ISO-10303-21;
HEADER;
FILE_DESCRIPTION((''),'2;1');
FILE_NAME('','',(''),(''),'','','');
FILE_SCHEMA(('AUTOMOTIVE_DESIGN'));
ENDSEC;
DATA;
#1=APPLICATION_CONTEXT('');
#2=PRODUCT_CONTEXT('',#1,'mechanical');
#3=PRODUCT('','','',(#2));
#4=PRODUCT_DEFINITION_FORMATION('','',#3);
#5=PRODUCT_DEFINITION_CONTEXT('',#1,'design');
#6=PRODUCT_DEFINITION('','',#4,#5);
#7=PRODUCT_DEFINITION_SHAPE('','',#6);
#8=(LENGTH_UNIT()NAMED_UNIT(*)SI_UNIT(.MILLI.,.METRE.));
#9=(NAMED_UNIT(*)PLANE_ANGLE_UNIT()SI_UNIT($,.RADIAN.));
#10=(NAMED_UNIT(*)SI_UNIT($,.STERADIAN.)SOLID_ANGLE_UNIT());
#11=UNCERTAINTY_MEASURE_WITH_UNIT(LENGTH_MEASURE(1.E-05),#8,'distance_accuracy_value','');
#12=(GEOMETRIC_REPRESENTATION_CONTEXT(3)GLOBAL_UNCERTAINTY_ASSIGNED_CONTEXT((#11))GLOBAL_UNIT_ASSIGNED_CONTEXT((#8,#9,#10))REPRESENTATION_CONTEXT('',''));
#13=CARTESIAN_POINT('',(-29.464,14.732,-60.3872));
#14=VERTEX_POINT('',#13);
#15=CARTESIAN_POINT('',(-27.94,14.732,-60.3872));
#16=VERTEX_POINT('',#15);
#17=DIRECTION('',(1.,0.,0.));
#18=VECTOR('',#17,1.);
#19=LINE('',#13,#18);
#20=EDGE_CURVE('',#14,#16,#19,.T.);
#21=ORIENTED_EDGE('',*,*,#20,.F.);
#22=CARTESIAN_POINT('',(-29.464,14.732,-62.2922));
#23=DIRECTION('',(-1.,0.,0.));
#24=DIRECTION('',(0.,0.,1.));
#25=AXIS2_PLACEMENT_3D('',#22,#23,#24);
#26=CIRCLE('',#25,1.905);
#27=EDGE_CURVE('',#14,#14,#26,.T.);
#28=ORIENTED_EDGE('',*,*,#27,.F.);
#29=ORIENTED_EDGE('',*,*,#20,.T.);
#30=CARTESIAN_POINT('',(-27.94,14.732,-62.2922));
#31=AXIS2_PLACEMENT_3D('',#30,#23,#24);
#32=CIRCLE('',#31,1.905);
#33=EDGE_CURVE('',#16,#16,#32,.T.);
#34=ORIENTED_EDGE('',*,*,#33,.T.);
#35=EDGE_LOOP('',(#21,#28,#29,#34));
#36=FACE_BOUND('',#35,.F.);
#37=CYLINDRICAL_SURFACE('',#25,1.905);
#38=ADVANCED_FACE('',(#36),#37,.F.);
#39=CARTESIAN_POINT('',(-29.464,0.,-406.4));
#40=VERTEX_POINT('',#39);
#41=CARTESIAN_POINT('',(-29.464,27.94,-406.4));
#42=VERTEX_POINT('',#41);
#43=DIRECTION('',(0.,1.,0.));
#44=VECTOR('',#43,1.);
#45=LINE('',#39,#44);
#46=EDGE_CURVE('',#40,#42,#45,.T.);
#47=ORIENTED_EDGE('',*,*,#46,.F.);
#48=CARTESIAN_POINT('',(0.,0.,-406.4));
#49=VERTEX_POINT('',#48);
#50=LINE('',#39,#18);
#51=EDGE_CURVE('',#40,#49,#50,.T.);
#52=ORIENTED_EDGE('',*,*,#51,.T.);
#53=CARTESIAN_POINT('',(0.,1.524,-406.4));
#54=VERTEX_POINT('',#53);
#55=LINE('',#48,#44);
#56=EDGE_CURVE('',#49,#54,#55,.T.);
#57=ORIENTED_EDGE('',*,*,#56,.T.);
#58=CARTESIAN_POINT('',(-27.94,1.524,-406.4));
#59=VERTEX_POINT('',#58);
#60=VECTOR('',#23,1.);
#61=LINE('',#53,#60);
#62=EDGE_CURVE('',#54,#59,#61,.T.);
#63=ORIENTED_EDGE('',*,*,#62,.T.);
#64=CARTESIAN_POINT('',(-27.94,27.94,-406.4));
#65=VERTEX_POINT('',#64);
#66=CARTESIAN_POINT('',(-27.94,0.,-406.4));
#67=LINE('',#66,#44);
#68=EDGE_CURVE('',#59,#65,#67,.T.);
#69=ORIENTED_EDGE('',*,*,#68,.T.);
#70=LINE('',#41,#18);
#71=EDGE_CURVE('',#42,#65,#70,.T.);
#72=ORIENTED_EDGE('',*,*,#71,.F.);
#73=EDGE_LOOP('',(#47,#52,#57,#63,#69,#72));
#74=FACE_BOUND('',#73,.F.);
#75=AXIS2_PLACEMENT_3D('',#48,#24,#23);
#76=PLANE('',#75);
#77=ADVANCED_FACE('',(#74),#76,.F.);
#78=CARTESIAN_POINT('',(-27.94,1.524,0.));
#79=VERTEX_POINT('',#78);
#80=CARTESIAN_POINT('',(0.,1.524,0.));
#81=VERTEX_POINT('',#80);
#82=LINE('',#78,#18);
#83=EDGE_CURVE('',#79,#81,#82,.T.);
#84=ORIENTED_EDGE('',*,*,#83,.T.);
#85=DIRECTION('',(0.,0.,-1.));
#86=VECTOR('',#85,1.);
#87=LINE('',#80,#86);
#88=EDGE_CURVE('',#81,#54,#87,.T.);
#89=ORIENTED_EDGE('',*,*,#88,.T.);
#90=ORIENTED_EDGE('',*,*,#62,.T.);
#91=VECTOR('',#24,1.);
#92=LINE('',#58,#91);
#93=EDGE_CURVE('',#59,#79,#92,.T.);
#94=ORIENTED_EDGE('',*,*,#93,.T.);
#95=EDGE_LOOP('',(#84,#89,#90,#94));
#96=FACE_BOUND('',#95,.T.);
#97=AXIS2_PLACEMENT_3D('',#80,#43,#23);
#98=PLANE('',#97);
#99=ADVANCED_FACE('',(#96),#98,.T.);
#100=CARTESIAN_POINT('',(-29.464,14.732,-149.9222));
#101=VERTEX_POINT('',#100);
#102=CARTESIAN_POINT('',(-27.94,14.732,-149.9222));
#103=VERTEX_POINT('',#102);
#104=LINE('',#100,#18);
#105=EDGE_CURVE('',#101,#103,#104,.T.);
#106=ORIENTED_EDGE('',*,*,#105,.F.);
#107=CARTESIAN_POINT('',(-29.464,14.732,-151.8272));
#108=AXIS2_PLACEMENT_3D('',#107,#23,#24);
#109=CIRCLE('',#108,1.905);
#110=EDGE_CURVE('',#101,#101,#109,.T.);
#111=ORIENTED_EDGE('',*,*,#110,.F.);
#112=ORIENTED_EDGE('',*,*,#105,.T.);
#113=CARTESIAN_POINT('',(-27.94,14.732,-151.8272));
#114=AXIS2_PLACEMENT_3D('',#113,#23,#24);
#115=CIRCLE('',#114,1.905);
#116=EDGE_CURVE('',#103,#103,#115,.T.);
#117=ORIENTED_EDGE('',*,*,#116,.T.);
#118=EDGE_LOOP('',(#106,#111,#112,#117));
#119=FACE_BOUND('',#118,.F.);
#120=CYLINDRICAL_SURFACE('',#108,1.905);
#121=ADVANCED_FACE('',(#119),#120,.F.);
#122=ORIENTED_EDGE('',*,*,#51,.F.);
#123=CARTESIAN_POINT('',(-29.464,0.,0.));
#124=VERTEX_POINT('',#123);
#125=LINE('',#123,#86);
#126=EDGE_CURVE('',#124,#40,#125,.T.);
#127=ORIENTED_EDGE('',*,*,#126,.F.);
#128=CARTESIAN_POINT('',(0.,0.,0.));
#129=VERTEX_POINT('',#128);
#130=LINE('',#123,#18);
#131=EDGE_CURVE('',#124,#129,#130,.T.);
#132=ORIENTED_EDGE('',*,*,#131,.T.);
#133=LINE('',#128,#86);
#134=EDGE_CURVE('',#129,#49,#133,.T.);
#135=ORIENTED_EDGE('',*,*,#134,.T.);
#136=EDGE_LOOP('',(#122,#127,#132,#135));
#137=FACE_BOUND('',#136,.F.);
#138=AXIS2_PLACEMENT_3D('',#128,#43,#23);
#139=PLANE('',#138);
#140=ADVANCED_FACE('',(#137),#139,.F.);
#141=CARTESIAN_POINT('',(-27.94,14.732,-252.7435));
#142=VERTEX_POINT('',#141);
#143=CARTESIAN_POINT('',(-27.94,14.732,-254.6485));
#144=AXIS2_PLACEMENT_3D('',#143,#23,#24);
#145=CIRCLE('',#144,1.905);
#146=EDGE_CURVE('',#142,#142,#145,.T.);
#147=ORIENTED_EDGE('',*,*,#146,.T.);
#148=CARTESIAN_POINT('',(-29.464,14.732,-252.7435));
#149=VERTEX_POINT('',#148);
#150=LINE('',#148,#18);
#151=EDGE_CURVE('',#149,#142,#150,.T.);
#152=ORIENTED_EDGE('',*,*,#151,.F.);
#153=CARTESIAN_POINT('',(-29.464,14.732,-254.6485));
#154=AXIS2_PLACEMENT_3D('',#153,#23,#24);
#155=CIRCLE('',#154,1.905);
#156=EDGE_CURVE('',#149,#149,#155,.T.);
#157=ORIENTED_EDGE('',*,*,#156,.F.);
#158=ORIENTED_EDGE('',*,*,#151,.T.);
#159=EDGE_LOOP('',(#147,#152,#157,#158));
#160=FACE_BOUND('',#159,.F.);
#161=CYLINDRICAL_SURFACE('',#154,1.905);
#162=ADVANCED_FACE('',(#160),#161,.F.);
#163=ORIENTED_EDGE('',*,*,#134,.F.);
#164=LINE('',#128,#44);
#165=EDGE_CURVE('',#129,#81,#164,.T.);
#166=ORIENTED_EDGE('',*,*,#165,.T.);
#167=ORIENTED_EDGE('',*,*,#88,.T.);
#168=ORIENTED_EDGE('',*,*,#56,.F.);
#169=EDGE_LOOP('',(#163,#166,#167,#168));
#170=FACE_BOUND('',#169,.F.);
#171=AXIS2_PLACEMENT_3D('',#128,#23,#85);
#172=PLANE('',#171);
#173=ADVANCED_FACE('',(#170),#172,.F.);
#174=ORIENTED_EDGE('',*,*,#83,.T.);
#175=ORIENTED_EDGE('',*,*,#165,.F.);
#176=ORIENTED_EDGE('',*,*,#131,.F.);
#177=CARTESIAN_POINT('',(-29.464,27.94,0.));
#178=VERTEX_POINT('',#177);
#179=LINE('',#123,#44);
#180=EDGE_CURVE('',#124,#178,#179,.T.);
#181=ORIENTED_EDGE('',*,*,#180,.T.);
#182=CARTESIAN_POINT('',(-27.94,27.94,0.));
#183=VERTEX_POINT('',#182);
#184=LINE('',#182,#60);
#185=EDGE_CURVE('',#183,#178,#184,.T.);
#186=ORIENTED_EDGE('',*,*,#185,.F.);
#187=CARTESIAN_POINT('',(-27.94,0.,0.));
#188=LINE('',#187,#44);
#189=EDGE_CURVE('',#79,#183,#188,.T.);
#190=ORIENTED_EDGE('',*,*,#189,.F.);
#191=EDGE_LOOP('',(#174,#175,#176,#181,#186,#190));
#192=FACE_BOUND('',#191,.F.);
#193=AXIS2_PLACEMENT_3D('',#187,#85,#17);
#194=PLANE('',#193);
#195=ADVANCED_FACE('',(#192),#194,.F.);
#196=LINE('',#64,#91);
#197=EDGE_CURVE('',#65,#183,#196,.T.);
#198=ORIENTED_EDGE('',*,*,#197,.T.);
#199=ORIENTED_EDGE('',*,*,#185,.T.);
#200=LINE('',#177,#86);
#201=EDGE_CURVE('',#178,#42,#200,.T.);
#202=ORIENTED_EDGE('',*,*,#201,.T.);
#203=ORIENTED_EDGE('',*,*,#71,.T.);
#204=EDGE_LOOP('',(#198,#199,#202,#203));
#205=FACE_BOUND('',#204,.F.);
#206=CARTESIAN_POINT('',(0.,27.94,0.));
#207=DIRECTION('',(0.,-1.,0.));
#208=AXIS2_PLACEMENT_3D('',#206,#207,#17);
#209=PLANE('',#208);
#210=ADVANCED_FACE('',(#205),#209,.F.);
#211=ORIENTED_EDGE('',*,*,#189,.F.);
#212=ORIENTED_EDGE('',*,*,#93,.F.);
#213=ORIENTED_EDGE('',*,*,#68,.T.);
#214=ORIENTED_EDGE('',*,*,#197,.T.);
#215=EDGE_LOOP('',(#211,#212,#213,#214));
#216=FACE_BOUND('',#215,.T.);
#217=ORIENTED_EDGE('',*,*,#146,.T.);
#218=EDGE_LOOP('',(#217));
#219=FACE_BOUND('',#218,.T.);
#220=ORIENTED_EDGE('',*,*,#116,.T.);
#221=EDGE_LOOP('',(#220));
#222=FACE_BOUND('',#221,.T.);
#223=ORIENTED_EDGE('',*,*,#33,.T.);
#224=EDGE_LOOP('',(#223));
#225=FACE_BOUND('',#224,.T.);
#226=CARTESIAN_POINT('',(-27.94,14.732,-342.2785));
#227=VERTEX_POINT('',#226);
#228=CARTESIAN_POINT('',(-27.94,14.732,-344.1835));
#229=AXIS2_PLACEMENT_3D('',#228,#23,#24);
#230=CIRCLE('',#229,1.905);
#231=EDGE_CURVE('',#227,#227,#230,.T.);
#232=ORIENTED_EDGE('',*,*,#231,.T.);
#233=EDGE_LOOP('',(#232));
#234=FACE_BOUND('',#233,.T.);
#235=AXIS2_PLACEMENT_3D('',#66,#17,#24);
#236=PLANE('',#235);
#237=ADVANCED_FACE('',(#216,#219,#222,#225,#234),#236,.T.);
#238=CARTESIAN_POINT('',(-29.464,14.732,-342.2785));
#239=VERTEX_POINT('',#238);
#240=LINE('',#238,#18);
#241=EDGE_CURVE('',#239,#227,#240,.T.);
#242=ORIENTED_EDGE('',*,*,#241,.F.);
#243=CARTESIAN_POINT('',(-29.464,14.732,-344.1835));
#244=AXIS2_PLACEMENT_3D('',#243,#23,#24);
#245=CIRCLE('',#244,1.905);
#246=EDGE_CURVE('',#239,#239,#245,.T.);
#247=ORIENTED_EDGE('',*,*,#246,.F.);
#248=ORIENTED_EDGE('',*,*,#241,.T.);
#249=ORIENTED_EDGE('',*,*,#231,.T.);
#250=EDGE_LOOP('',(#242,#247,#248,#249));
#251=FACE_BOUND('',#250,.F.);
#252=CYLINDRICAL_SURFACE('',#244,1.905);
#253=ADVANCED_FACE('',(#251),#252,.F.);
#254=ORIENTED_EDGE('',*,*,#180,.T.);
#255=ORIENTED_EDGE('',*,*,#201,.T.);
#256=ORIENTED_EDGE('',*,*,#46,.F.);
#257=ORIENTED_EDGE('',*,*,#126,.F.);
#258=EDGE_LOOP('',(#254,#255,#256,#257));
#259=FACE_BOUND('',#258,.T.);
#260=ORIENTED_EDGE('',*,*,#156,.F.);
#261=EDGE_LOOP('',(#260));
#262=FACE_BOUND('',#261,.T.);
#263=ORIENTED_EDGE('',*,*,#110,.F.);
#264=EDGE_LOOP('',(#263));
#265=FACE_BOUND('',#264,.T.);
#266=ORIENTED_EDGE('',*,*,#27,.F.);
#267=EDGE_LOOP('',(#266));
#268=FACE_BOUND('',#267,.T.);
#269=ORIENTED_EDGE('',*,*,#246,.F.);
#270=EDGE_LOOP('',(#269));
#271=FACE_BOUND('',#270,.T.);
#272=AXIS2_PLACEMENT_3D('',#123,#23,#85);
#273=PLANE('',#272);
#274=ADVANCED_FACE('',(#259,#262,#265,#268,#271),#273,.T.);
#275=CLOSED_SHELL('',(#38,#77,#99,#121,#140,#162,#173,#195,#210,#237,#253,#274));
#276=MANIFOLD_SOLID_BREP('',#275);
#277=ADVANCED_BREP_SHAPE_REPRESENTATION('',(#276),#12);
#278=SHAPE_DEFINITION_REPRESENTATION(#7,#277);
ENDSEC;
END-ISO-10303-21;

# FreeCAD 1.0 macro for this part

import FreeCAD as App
import Part
import Sketcher
Q = App.Units.Quantity

doc = App.newDocument("Part")
body = doc.addObject("PartDesign::Body", "Body")

# Sketch on XZ plane
sketch1 = doc.addObject("Sketcher::SketchObject", "Sketch")
body.addObject(sketch1)
sketch1.AttachmentSupport = (doc.XZ_Plane, [""])
sketch1.MapMode = "FlatFace"
sketch1.addGeometry(Part.LineSegment(App.Vector(-28, 0, 0), App.Vector(0, 0, 0)), False)
sketch1.addGeometry(Part.LineSegment(App.Vector(0, 0, 0), App.Vector(0, -406, 0)), False)
sketch1.addGeometry(Part.LineSegment(App.Vector(0, -406, 0), App.Vector(-28, -406, 0)), False)
sketch1.addGeometry(Part.LineSegment(App.Vector(-28, -406, 0), App.Vector(-28, 0, 0)), False)
sketch1.addConstraint(Sketcher.Constraint("Coincident", 0, 2, 1, 1))
sketch1.addConstraint(Sketcher.Constraint("Coincident", 1, 2, 2, 1))
sketch1.addConstraint(Sketcher.Constraint("Coincident", 2, 2, 3, 1))
sketch1.addConstraint(Sketcher.Constraint("Coincident", 3, 2, 0, 1))
sketch1.addConstraint(Sketcher.Constraint("Horizontal", 0))
sketch1.addConstraint(Sketcher.Constraint("Vertical", 1))
sketch1.addConstraint(Sketcher.Constraint("Horizontal", 2))
sketch1.addConstraint(Sketcher.Constraint("Vertical", 3))
sketch1.addConstraint(Sketcher.Constraint("Coincident", 0, 2, -1, 1))
sketch1.addConstraint(Sketcher.Constraint("DistanceY", 1, 2, 1, 1, Q("16 in")))
sketch1.addConstraint(Sketcher.Constraint("DistanceX", 0, 1, 0, 2, Q("1.1 in")))
pad1 = doc.addObject("PartDesign::Pad", "Pad")
body.addObject(pad1)
pad1.Profile = sketch1
pad1.Length = Q("0.06 in")
pad1.Reversed = True

# Sketch on XZ plane
sketch2 = doc.addObject("Sketcher::SketchObject", "Sketch001")
body.addObject(sketch2)
sketch2.AttachmentSupport = (doc.XZ_Plane, [""])
sketch2.MapMode = "FlatFace"
sketch2.addGeometry(Part.LineSegment(App.Vector(-27.9, -406.4, 0), App.Vector(-27.9, 0, 0)), False)
sketch2.addGeometry(Part.LineSegment(App.Vector(-27.9, 0, 0), App.Vector(-29.5, 0, 0)), False)
sketch2.addGeometry(Part.LineSegment(App.Vector(-29.5, 0, 0), App.Vector(-29.5, -406.4, 0)), False)
sketch2.addGeometry(Part.LineSegment(App.Vector(-29.5, -406.4, 0), App.Vector(-27.9, -406.4, 0)), False)
sketch2.addConstraint(Sketcher.Constraint("Coincident", 0, 2, 1, 1))
sketch2.addConstraint(Sketcher.Constraint("Coincident", 1, 2, 2, 1))
sketch2.addConstraint(Sketcher.Constraint("Coincident", 2, 2, 3, 1))
sketch2.addConstraint(Sketcher.Constraint("Coincident", 3, 2, 0, 1))
sketch2.addConstraint(Sketcher.Constraint("Vertical", 0))
sketch2.addConstraint(Sketcher.Constraint("Horizontal", 1))
sketch2.addConstraint(Sketcher.Constraint("Vertical", 2))
sketch2.addConstraint(Sketcher.Constraint("Horizontal", 3))
sketch2.addConstraint(Sketcher.Constraint("PointOnObject", 0, 2, -1))
sketch2.addConstraint(Sketcher.Constraint("DistanceX", 1, 2, 1, 1, Q("0.06 in")))
sketch2.addConstraint(Sketcher.Constraint("DistanceY", 0, 1, 0, 2, Q("16 in")))
sketch2.addConstraint(Sketcher.Constraint("DistanceX", 0, 2, -1, 1, Q("1.1 in")))
pad2 = doc.addObject("PartDesign::Pad", "Pad001")
body.addObject(pad2)
pad2.Profile = sketch2
pad2.Length = Q("1.1 in")
pad2.Reversed = True

# Sketch on YZ plane
sketch3 = doc.addObject("Sketcher::SketchObject", "Sketch002")
body.addObject(sketch3)
sketch3.AttachmentSupport = (doc.YZ_Plane, [""])
sketch3.MapMode = "FlatFace"
sketch3.AttachmentOffset = App.Placement(App.Vector(0, 0, -1.16 * 25.4), App.Rotation())
sketch3.addGeometry(Part.Circle(App.Vector(14.7, -62.3, 0), App.Vector(0, 0, 1), 1.9), False)
sketch3.addGeometry(Part.Circle(App.Vector(14.7, -151.8, 0), App.Vector(0, 0, 1), 1.9), False)
sketch3.addGeometry(Part.Circle(App.Vector(14.7, -254.6, 0), App.Vector(0, 0, 1), 1.9), False)
sketch3.addGeometry(Part.Circle(App.Vector(14.7, -344.2, 0), App.Vector(0, 0, 1), 1.9), False)
sketch3.addConstraint(Sketcher.Constraint("Equal", 0, 1))
sketch3.addConstraint(Sketcher.Constraint("Equal", 1, 2))
sketch3.addConstraint(Sketcher.Constraint("Equal", 2, 3))
sketch3.addConstraint(Sketcher.Constraint("Vertical", 0, 3, 1, 3))
sketch3.addConstraint(Sketcher.Constraint("Vertical", 1, 3, 2, 3))
sketch3.addConstraint(Sketcher.Constraint("Vertical", 2, 3, 3, 3))
sketch3.addConstraint(Sketcher.Constraint("Diameter", 0, Q("0.15 in")))
sketch3.addConstraint(Sketcher.Constraint("DistanceX", -1, 1, 0, 3, Q("0.58 in")))
sketch3.addConstraint(Sketcher.Constraint("DistanceY", 1, 3, 0, 3, Q("3.525 in")))
sketch3.addConstraint(Sketcher.Constraint("DistanceY", 3, 3, 2, 3, Q("3.525 in")))
sketch3.addConstraint(Sketcher.Constraint("DistanceY", 0, 3, -1, 1, Q("62.2922 mm")))
sketch3.addConstraint(Sketcher.Constraint("DistanceY", 2, 3, -1, 1, Q("254.6485 mm")))
pocket1 = doc.addObject("PartDesign::Pocket", "Pocket")
body.addObject(pocket1)
pocket1.Profile = sketch3
pocket1.Length = Q("0.6875 in")
pocket1.Reversed = True

doc.recompute()
